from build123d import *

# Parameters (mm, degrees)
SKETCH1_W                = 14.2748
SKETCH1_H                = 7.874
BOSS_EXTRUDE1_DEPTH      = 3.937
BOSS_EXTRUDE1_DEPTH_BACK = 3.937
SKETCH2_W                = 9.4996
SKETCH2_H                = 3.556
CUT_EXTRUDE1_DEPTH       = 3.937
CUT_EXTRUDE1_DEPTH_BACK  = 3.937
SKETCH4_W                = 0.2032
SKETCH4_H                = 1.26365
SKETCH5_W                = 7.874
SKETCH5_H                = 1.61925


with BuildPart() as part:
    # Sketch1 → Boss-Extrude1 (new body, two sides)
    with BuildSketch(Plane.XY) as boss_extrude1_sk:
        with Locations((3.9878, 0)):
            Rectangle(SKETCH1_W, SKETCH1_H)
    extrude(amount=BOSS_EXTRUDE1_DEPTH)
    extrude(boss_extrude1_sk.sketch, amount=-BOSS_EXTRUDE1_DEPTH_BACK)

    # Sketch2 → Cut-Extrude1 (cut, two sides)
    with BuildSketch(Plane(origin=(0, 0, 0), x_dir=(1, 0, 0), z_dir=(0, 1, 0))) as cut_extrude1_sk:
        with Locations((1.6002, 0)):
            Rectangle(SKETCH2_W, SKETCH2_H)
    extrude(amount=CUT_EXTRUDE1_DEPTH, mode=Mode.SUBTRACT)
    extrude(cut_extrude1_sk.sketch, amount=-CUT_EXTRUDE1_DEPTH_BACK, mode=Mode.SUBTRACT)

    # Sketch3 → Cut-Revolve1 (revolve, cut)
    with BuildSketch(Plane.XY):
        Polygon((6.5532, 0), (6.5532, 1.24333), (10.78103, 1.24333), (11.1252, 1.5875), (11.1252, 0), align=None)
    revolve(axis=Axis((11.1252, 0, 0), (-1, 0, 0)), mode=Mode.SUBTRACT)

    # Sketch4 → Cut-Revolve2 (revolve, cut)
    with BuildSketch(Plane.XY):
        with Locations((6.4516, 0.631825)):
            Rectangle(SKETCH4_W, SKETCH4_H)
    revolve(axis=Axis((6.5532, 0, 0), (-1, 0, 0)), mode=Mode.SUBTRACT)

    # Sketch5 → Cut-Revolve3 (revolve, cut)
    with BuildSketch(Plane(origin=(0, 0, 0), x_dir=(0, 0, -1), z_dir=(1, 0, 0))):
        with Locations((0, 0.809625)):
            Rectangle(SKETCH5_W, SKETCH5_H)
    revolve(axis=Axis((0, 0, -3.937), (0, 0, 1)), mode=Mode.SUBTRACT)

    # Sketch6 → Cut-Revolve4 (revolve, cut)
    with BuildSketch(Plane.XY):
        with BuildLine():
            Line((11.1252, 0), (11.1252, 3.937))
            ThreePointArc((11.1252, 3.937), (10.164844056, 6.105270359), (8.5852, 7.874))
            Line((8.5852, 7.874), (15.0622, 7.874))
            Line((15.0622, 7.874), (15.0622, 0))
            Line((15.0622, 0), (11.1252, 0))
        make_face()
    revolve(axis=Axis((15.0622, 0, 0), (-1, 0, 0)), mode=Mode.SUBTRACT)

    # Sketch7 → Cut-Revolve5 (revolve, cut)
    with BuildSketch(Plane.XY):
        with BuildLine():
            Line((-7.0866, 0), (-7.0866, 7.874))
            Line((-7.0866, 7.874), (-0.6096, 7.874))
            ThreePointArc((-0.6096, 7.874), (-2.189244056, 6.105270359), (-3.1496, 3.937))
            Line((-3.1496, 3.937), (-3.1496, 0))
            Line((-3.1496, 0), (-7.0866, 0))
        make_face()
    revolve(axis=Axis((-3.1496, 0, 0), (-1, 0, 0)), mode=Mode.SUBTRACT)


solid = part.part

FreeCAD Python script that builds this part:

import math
import FreeCAD as App
import Part
import Sketcher
from FreeCAD import Vector
Q = App.Units.Quantity


def add_polygon(sketch, points):
    """Adds a closed chain of lines whose ends are joined by coincident constraints."""
    first, n = sketch.GeometryCount, len(points)
    for a, b in zip(points, points[1:] + points[:1]):
        sketch.addGeometry(Part.LineSegment(App.Vector(*a, 0), App.Vector(*b, 0)), False)
    for i in range(n):
        sketch.addConstraint(Sketcher.Constraint("Coincident", first + i, 2, first + (i + 1) % n, 1))

doc = App.newDocument("Part")
body = doc.addObject("PartDesign::Body", "Body")

# Sketch on XY plane
sketch1 = body.newObject("Sketcher::SketchObject", "Sketch")
sketch1.AttachmentSupport = (doc.getObject("XY_Plane"), [""])
sketch1.MapMode = "FlatFace"
add_polygon(sketch1, [(-3, 4), (-3, -4), (11, -4), (11, 4)])  # lines 0-3
sketch1.addConstraint(Sketcher.Constraint("Vertical", 0))
sketch1.addConstraint(Sketcher.Constraint("Horizontal", 1))
sketch1.addConstraint(Sketcher.Constraint("Vertical", 2))
sketch1.addConstraint(Sketcher.Constraint("Horizontal", 3))
sketch1.addConstraint(Sketcher.Constraint("DistanceY", 0, 2, 0, 1, Q("0.31 in")))
sketch1.addConstraint(Sketcher.Constraint("DistanceX", 1, 1, 1, 2, Q("0.562 in")))
sketch1.addConstraint(Sketcher.Constraint("DistanceX", 0, 2, -1, 1, Q("0.124 in")))
sketch1.addConstraint(Sketcher.Constraint("DistanceY", 0, 2, -1, 1, Q("0.155 in")))
pad1 = body.newObject("PartDesign::Pad", "Pad")
pad1.Profile = sketch1
pad1.Type = "TwoLengths"
pad1.Length = Q("0.155 in")
pad1.Length2 = Q("0.155 in")

# Sketch on XZ plane
sketch2 = body.newObject("Sketcher::SketchObject", "Sketch001")
sketch2.AttachmentSupport = (doc.getObject("XZ_Plane"), [""])
sketch2.MapMode = "FlatFace"
add_polygon(sketch2, [(-3.1, -1.8), (-3.1, 1.8), (6.3, 1.8), (6.3, -1.8)])  # lines 0-3
sketch2.addConstraint(Sketcher.Constraint("Vertical", 0))
sketch2.addConstraint(Sketcher.Constraint("Horizontal", 1))
sketch2.addConstraint(Sketcher.Constraint("Vertical", 2))
sketch2.addConstraint(Sketcher.Constraint("Horizontal", 3))
sketch2.addConstraint(Sketcher.Constraint("DistanceY", 0, 1, 0, 2, Q("0.14 in")))
sketch2.addConstraint(Sketcher.Constraint("DistanceX", 1, 1, 1, 2, Q("0.374 in")))
sketch2.addConstraint(Sketcher.Constraint("DistanceY", -1, 1, 0, 2, Q("0.07 in")))
sketch2.addConstraint(Sketcher.Constraint("DistanceX", -1, 1, 1, 2, Q("0.25 in")))
pocket1 = body.newObject("PartDesign::Pocket", "Pocket")
pocket1.Profile = sketch2
pocket1.Type = "ThroughAll"
pocket1.Midplane = True

# Sketch on XY plane
sketch3 = body.newObject("Sketcher::SketchObject", "Sketch002")
sketch3.AttachmentSupport = (doc.getObject("XY_Plane"), [""])
sketch3.MapMode = "FlatFace"
add_polygon(sketch3, [(6.55, 1.24), (6.55, 0), (11.13, 0), (11.13, 1.59), (10.78, 1.24)])  # lines 0-4
sketch3.addConstraint(Sketcher.Constraint("Vertical", 0))
sketch3.addConstraint(Sketcher.Constraint("Horizontal", 1))
sketch3.addConstraint(Sketcher.Constraint("Vertical", 2))
sketch3.addConstraint(Sketcher.Constraint("Horizontal", 4))
sketch3.addConstraint(Sketcher.Constraint("PointOnObject", 0, 2, -1))
sketch3.addConstraint(Sketcher.Constraint("Angle", 3, Q("-135 deg")))
sketch3.addConstraint(Sketcher.Constraint("DistanceX", 1, 1, 1, 2, Q("0.18 in")))
sketch3.addConstraint(Sketcher.Constraint("DistanceY", 2, 1, 2, 2, Q("0.0625 in")))
sketch3.addConstraint(Sketcher.Constraint("DistanceX", -1, 1, 0, 2, Q("0.258 in")))
sketch3.addConstraint(Sketcher.Constraint("DistanceX", 4, 2, 4, 1, Q("4.22783 mm")))
groove = body.newObject("PartDesign::Groove", "Groove")
groove.Profile = sketch3
groove.ReferenceAxis = (sketch3, ["H_Axis"])
groove.Angle = 360

# Sketch on XY plane
sketch4 = body.newObject("Sketcher::SketchObject", "Sketch003")
sketch4.AttachmentSupport = (doc.getObject("XY_Plane"), [""])
sketch4.MapMode = "FlatFace"
add_polygon(sketch4, [(6.35, 1.26), (6.35, 0), (6.55, 0), (6.55, 1.26)])  # lines 0-3
sketch4.addConstraint(Sketcher.Constraint("Vertical", 0))
sketch4.addConstraint(Sketcher.Constraint("Horizontal", 1))
sketch4.addConstraint(Sketcher.Constraint("Vertical", 2))
sketch4.addConstraint(Sketcher.Constraint("Horizontal", 3))
sketch4.addConstraint(Sketcher.Constraint("PointOnObject", 0, 2, -1))
sketch4.addConstraint(Sketcher.Constraint("DistanceX", 1, 1, 1, 2, Q("0.008 in")))
sketch4.addConstraint(Sketcher.Constraint("DistanceX", -1, 1, 0, 2, Q("0.25 in")))
sketch4.addConstraint(Sketcher.Constraint("DistanceY", 0, 2, 0, 1, Q("1.26365 mm")))
groove2 = body.newObject("PartDesign::Groove", "Groove001")
groove2.Profile = sketch4
groove2.ReferenceAxis = (sketch4, ["H_Axis"])
groove2.Angle = 360

# Sketch on YZ plane
sketch5 = body.newObject("Sketcher::SketchObject", "Sketch004")
sketch5.AttachmentSupport = (doc.getObject("YZ_Plane"), [""])
sketch5.MapMode = "FlatFace"
add_polygon(sketch5, [(1.6, 3.9), (0, 3.9), (0, -3.9), (1.6, -3.9)])  # lines 0-3
sketch5.addConstraint(Sketcher.Constraint("Horizontal", 0))
sketch5.addConstraint(Sketcher.Constraint("Vertical", 1))
sketch5.addConstraint(Sketcher.Constraint("Horizontal", 2))
sketch5.addConstraint(Sketcher.Constraint("Vertical", 3))
sketch5.addConstraint(Sketcher.Constraint("Symmetric", 0, 2, 1, 2, -1, 1))
sketch5.addConstraint(Sketcher.Constraint("DistanceY", 1, 2, 1, 1, Q("0.31 in")))
sketch5.addConstraint(Sketcher.Constraint("DistanceX", 0, 2, 0, 1, Q("1.61925 mm")))
groove3 = body.newObject("PartDesign::Groove", "Groove002")
groove3.Profile = sketch5
groove3.ReferenceAxis = (sketch5, ["V_Axis"])
groove3.Angle = 360

# Sketch on XY plane
sketch6 = body.newObject("Sketcher::SketchObject", "Sketch005")
sketch6.AttachmentSupport = (doc.getObject("XY_Plane"), [""])
sketch6.MapMode = "FlatFace"
sketch6.addGeometry(Part.LineSegment(Vector(11.1, 3.9, 0), Vector(11.1, 0, 0)), False)
sketch6.addGeometry(Part.LineSegment(Vector(11.1, 0, 0), Vector(15.1, 0, 0)), False)
sketch6.addGeometry(Part.LineSegment(Vector(15.1, 0, 0), Vector(15.1, 7.9, 0)), False)
sketch6.addGeometry(Part.LineSegment(Vector(15.1, 7.9, 0), Vector(8.6, 7.9, 0)), False)
sketch6.addGeometry(Part.ArcOfCircle(Part.Circle(Vector(3.8, 2, 0), Vector(0, 0, 1), 7.6), math.radians(15), math.radians(51)), False)
sketch6.addConstraint(Sketcher.Constraint("Coincident", 0, 2, 1, 1))
sketch6.addConstraint(Sketcher.Constraint("Coincident", 1, 2, 2, 1))
sketch6.addConstraint(Sketcher.Constraint("Coincident", 2, 2, 3, 1))
sketch6.addConstraint(Sketcher.Constraint("Coincident", 3, 2, 4, 2))
sketch6.addConstraint(Sketcher.Constraint("Coincident", 4, 1, 0, 1))
sketch6.addConstraint(Sketcher.Constraint("Vertical", 0))
sketch6.addConstraint(Sketcher.Constraint("Horizontal", 1))
sketch6.addConstraint(Sketcher.Constraint("Vertical", 2))
sketch6.addConstraint(Sketcher.Constraint("Horizontal", 3))
sketch6.addConstraint(Sketcher.Constraint("PointOnObject", 0, 2, -1))
sketch6.addConstraint(Sketcher.Constraint("Equal", 1, 0))
sketch6.addConstraint(Sketcher.Constraint("DistanceY", 2, 1, 2, 2, Q("0.31 in")))
sketch6.addConstraint(Sketcher.Constraint("DistanceX", 3, 2, 0, 2, Q("0.1 in")))
sketch6.addConstraint(Sketcher.Constraint("DistanceX", 1, 1, 1, 2, Q("0.155 in")))
sketch6.addConstraint(Sketcher.Constraint("DistanceX", -1, 1, 0, 2, Q("0.438 in")))
sketch6.addConstraint(Sketcher.Constraint("Radius", 4, Q("7.630631 mm")))
groove4 = body.newObject("PartDesign::Groove", "Groove003")
groove4.Profile = sketch6
groove4.ReferenceAxis = (sketch6, ["H_Axis"])
groove4.Angle = 360

# Sketch on XY plane
sketch7 = body.newObject("Sketcher::SketchObject", "Sketch006")
sketch7.AttachmentSupport = (doc.getObject("XY_Plane"), [""])
sketch7.MapMode = "FlatFace"
sketch7.addGeometry(Part.LineSegment(Vector(-7.1, 7.9, 0), Vector(-7.1, 0, 0)), False)
sketch7.addGeometry(Part.LineSegment(Vector(-7.1, 0, 0), Vector(-3.1, 0, 0)), False)
sketch7.addGeometry(Part.LineSegment(Vector(-3.1, 0, 0), Vector(-3.1, 3.9, 0)), False)
sketch7.addGeometry(Part.ArcOfCircle(Part.Circle(Vector(4.2, 2, 0), Vector(0, 0, 1), 7.6), math.radians(129), math.radians(165)), False)
sketch7.addGeometry(Part.LineSegment(Vector(-0.6, 7.9, 0), Vector(-7.1, 7.9, 0)), False)
sketch7.addConstraint(Sketcher.Constraint("Coincident", 0, 2, 1, 1))
sketch7.addConstraint(Sketcher.Constraint("Coincident", 1, 2, 2, 1))
sketch7.addConstraint(Sketcher.Constraint("Coincident", 2, 2, 3, 2))
sketch7.addConstraint(Sketcher.Constraint("Coincident", 3, 1, 4, 1))
sketch7.addConstraint(Sketcher.Constraint("Coincident", 4, 2, 0, 1))
sketch7.addConstraint(Sketcher.Constraint("Vertical", 0))
sketch7.addConstraint(Sketcher.Constraint("Horizontal", 1))
sketch7.addConstraint(Sketcher.Constraint("Vertical", 2))
sketch7.addConstraint(Sketcher.Constraint("Horizontal", 4))
sketch7.addConstraint(Sketcher.Constraint("PointOnObject", 0, 2, -1))
sketch7.addConstraint(Sketcher.Constraint("Equal", 1, 2))
sketch7.addConstraint(Sketcher.Constraint("DistanceY", 0, 2, 0, 1, Q("0.31 in")))
sketch7.addConstraint(Sketcher.Constraint("DistanceX", 2, 2, 3, 1, Q("0.1 in")))
sketch7.addConstraint(Sketcher.Constraint("DistanceX", 1, 1, 1, 2, Q("0.155 in")))
sketch7.addConstraint(Sketcher.Constraint("DistanceX", 0, 2, -1, 1, Q("0.279 in")))
sketch7.addConstraint(Sketcher.Constraint("Radius", 3, Q("7.630631 mm")))
groove5 = body.newObject("PartDesign::Groove", "Groove004")
groove5.Profile = sketch7
groove5.ReferenceAxis = (sketch7, ["H_Axis"])
groove5.Angle = 360

doc.recompute()
